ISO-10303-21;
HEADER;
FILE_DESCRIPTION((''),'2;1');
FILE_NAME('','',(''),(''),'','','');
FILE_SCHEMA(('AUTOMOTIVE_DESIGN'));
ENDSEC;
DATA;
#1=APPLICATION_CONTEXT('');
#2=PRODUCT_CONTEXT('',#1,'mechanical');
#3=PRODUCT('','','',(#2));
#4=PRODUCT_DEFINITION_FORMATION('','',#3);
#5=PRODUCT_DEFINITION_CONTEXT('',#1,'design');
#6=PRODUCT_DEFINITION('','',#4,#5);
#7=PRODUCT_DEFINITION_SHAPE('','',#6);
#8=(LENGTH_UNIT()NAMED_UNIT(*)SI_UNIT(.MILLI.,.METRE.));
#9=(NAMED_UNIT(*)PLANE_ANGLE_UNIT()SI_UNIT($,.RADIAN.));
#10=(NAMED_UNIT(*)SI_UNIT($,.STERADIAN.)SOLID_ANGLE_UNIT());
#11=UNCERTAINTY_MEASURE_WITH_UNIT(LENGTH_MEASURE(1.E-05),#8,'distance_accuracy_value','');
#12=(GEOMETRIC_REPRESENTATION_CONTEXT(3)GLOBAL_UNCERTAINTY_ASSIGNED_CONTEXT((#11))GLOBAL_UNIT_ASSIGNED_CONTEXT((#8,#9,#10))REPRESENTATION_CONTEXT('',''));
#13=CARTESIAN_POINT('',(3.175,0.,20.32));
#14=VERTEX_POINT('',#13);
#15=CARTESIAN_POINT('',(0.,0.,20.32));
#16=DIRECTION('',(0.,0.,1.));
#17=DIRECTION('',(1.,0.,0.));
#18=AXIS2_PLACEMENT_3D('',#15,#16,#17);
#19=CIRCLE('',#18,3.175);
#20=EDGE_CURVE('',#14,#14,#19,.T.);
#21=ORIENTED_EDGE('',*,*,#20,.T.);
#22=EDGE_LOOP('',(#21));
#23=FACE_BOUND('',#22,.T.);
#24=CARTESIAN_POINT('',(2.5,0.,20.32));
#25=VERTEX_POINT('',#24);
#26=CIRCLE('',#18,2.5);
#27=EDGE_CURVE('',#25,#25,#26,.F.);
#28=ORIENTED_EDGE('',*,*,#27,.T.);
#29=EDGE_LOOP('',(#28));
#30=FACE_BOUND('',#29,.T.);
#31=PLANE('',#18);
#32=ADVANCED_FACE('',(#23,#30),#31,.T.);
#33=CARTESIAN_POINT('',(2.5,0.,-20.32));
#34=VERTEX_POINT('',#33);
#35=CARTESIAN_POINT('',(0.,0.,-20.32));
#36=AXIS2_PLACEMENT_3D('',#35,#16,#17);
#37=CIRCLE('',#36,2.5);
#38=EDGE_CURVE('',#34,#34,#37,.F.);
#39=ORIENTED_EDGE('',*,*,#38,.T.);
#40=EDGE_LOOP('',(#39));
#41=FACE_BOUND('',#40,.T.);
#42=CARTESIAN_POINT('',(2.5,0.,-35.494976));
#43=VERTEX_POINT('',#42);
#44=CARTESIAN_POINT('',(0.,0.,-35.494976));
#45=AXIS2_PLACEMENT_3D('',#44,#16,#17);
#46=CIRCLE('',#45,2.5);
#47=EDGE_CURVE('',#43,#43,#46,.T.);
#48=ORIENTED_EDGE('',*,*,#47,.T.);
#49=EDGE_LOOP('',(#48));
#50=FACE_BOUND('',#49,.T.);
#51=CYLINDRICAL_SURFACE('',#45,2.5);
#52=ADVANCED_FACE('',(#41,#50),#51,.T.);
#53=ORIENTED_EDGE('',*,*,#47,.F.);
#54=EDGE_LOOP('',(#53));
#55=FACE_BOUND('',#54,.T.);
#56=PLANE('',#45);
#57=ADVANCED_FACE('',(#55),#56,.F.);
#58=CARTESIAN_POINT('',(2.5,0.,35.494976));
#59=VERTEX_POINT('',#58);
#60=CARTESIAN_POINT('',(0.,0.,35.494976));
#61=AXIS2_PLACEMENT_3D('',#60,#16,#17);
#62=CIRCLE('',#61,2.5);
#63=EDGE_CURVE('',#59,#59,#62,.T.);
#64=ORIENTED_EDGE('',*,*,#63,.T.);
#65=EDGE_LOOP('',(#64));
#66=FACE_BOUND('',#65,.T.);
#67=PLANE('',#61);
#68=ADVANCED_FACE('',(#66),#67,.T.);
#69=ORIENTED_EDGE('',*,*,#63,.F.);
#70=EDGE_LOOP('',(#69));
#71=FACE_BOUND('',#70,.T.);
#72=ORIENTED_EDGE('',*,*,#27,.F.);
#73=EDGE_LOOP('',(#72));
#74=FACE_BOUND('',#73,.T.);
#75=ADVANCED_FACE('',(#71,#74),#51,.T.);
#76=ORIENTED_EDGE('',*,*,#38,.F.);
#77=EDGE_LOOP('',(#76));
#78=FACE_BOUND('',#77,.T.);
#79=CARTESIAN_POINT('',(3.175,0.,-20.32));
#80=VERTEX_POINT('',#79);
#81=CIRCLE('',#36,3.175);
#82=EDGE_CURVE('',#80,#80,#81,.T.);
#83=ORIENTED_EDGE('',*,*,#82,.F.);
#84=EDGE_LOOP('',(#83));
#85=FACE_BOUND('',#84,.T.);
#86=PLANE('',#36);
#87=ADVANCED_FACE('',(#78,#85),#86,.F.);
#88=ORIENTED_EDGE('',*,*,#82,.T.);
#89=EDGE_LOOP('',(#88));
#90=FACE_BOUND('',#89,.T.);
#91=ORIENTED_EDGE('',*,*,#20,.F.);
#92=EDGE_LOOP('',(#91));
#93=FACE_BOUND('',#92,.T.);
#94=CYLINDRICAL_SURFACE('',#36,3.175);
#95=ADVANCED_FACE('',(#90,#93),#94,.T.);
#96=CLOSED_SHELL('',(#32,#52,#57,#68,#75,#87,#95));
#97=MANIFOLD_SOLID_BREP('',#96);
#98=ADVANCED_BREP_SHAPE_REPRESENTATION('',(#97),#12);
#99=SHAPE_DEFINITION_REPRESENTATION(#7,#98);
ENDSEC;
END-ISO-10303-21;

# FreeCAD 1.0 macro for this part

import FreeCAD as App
import Part
import Sketcher

V = App.Vector
Q = App.Units.Quantity

doc = App.newDocument("Part")
body = doc.addObject("PartDesign::Body", "Body")

sketch1 = doc.addObject("Sketcher::SketchObject", "Sketch")
body.addObject(sketch1)
sketch1.AttachmentSupport = (doc.XY_Plane, [""])
sketch1.MapMode = "FlatFace"
sketch1.addGeometry(Part.Circle(V(0, 0, 0), V(0, 0, 1), 2.5), False)
sketch1.addConstraint([
    Sketcher.Constraint("Coincident", 0, 3, -1, 1),
    Sketcher.Constraint("Diameter", 0, Q("5 mm")),
])
pad1 = doc.addObject("PartDesign::Pad", "Pad")
body.addObject(pad1)
pad1.Profile = sketch1
pad1.Type = "TwoLengths"
pad1.Length = 35.494976
pad1.Length2 = 35.494976

sketch2 = doc.addObject("Sketcher::SketchObject", "Sketch001")
body.addObject(sketch2)
sketch2.AttachmentSupport = (doc.XY_Plane, [""])
sketch2.MapMode = "FlatFace"
sketch2.addGeometry(Part.Circle(V(0, 0, 0), V(0, 0, 1), 3.175), False)
sketch2.addConstraint([
    Sketcher.Constraint("Coincident", 0, 3, -1, 1),
    Sketcher.Constraint("Diameter", 0, Q("0.25 in")),
])
pad2 = doc.addObject("PartDesign::Pad", "Pad001")
body.addObject(pad2)
pad2.Profile = sketch2
pad2.Type = "TwoLengths"
pad2.Length = Q("0.8 in")
pad2.Length2 = Q("0.8 in")

doc.recompute()
